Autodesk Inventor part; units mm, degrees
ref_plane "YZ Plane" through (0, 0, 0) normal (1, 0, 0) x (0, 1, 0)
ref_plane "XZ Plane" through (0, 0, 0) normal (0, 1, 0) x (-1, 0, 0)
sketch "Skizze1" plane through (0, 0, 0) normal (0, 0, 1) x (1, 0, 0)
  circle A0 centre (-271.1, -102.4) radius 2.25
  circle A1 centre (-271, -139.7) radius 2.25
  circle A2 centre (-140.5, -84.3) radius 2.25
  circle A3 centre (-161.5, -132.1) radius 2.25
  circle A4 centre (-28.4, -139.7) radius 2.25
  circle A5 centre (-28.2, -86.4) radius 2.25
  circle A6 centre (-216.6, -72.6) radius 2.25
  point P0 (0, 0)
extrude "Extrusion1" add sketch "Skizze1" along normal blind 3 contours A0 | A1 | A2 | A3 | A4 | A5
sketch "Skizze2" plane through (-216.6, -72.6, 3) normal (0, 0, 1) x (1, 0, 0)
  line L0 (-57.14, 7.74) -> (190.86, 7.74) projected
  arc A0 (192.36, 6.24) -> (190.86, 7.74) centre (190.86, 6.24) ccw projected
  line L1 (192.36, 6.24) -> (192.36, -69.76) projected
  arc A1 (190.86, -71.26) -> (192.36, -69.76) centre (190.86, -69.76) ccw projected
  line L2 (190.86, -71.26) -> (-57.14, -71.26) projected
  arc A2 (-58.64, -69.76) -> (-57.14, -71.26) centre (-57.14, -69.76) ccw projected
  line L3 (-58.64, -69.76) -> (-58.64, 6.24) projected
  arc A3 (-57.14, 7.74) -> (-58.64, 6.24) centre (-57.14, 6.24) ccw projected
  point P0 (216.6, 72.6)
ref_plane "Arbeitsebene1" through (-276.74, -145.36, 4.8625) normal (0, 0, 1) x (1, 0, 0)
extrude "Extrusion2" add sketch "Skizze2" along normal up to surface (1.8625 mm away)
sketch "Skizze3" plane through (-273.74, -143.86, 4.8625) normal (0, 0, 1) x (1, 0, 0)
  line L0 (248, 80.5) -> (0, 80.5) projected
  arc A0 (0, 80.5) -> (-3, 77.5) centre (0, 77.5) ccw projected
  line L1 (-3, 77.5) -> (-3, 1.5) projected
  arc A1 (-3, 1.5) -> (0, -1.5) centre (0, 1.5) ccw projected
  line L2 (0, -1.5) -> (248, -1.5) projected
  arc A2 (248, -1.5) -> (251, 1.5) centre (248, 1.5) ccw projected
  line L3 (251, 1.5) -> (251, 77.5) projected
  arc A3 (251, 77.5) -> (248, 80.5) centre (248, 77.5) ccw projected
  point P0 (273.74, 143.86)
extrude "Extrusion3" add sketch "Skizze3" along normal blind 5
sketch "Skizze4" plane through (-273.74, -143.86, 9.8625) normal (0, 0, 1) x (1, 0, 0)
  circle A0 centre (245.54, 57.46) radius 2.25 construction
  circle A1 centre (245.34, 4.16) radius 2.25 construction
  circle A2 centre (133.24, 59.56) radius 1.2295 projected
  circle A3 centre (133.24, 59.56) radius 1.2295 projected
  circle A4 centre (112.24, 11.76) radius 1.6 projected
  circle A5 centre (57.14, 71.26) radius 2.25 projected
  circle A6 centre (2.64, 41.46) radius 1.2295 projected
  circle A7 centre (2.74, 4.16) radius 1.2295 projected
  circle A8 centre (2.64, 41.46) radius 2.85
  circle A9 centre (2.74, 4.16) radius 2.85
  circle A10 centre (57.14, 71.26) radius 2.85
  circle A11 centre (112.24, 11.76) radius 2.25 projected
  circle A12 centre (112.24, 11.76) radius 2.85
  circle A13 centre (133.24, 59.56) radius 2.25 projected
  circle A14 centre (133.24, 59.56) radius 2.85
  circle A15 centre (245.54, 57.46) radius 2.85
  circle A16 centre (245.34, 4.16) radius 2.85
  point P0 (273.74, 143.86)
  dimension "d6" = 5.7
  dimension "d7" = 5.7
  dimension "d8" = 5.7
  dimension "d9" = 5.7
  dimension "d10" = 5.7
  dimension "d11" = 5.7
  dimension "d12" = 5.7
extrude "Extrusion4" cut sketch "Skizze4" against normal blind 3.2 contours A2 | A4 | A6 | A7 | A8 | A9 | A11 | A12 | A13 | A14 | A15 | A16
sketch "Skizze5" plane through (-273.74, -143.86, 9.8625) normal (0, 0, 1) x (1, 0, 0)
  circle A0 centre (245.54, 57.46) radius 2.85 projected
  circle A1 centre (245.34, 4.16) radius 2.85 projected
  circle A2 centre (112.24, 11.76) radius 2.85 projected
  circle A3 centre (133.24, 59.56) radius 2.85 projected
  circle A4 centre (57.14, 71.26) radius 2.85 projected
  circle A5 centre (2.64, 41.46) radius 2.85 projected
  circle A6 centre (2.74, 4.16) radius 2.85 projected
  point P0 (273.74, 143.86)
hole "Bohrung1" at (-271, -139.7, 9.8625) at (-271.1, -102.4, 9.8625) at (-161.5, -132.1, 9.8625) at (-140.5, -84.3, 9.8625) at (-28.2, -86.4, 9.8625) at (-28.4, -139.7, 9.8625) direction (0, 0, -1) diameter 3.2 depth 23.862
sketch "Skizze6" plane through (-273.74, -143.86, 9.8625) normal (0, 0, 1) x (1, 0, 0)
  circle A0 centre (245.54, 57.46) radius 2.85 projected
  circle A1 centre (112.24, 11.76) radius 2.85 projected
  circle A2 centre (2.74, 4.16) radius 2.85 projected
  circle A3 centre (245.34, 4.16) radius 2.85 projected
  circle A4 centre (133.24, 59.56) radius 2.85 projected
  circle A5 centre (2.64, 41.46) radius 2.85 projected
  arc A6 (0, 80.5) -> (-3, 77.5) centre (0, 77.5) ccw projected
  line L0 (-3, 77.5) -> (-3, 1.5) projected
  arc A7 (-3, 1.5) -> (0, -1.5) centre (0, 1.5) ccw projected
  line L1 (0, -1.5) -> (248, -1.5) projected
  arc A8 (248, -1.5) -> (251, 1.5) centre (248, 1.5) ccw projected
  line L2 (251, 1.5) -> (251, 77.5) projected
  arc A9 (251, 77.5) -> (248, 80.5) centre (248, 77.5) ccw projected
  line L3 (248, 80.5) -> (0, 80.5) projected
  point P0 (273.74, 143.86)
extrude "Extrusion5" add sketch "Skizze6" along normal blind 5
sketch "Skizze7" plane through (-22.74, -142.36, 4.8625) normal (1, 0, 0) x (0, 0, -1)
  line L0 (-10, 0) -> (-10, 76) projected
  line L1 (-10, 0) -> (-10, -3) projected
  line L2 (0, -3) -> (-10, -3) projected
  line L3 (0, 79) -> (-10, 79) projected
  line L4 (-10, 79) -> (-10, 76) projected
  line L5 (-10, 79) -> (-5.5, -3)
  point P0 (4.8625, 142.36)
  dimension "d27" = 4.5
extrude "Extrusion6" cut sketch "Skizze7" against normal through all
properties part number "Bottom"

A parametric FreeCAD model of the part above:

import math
import FreeCAD as App
import Part
import Sketcher

V = App.Vector


def add_polygon(sketch, points):
    """Adds a closed chain of lines whose ends are joined by coincident constraints."""
    first, n = sketch.GeometryCount, len(points)
    for a, b in zip(points, points[1:] + points[:1]):
        sketch.addGeometry(Part.LineSegment(App.Vector(*a, 0), App.Vector(*b, 0)), False)
    for i in range(n):
        sketch.addConstraint(Sketcher.Constraint("Coincident", first + i, 2, first + (i + 1) % n, 1))

doc = App.newDocument("Part")
params = doc.addObject("Spreadsheet::Sheet", "Params")
for row, (alias, value) in enumerate([
    ("sketch1_diameter", "4.5 mm"),
    ("pad1_length", "3 mm"),
    ("sketch2_radius", "1.5 mm"),
    ("sketch2_width", "248 mm"),
    ("sketch2_height", "76 mm"),
    ("pad2_length", "1.8625 mm"),
    ("sketch3_radius", "3 mm"),
    ("sketch3_width", "248 mm"),
    ("sketch3_height", "76 mm"),
    ("pad3_length", "5 mm"),
    ("sketch4_diameter", "5.7 mm"),
    ("pocket1_length", "3.2 mm"),
    ("sketch5_diameter", "3.2 mm"),
    ("hole_diameter", "3.2 mm"),
    ("hole_depth", "23.862 mm"),
    ("sketch6_radius", "3 mm"),
    ("sketch6_diameter", "5.7 mm"),
    ("sketch6_width", "248 mm"),
    ("sketch6_height", "76 mm"),
    ("pad4_length", "5 mm"),
    ("sketch7_height", "4.5 mm"),
    ("sketch7_width", "82 mm"),
], start=1):
    params.set(f"A{row}", alias)
    params.set(f"B{row}", "=" + value)
    params.setAlias(f"B{row}", alias)

body = doc.addObject("PartDesign::Body", "Body")
body.AllowCompound = True

# Sketch on XY plane
sketch1 = body.newObject("Sketcher::SketchObject", "Sketch")
sketch1.AttachmentSupport = (doc.getObject("XY_Plane"), [""])
sketch1.MapMode = "FlatFace"
sketch1.addGeometry([
    Part.Circle(V(-271.1, -102.4, 0), V(0, 0, 1), 2.2),  # 0
    Part.Circle(V(-271, -139.7, 0), V(0, 0, 1), 2.2),  # 1
    Part.Circle(V(-140.5, -84.3, 0), V(0, 0, 1), 2.2),  # 2
    Part.Circle(V(-161.5, -132.1, 0), V(0, 0, 1), 2.2),  # 3
    Part.Circle(V(-28.4, -139.7, 0), V(0, 0, 1), 2.2),  # 4
    Part.Circle(V(-28.2, -86.4, 0), V(0, 0, 1), 2.2),  # 5
], False)
sketch1.addConstraint([
    Sketcher.Constraint("Equal", 0, 1),
    Sketcher.Constraint("Equal", 1, 2),
    Sketcher.Constraint("Equal", 2, 3),
    Sketcher.Constraint("Equal", 3, 4),
    Sketcher.Constraint("Equal", 4, 5),
    Sketcher.Constraint("Horizontal", 1, 3, 4, 3),
    Sketcher.Constraint("Diameter", 0, 4.5),
    Sketcher.Constraint("DistanceX", 1, 3, -1, 1, 271.0),
    Sketcher.Constraint("DistanceX", 3, 3, 2, 3, 21.0),
    Sketcher.Constraint("DistanceY", 0, 3, 5, 3, 16.0),
    Sketcher.Constraint("DistanceX", 0, 3, -1, 1, 271.1),
    Sketcher.Constraint("DistanceY", 0, 3, -1, 1, 102.4),
    Sketcher.Constraint("DistanceY", 1, 3, -1, 1, 139.7),
    Sketcher.Constraint("DistanceX", 2, 3, -1, 1, 140.5),
    Sketcher.Constraint("DistanceY", 2, 3, -1, 1, 84.3),
    Sketcher.Constraint("DistanceY", 3, 3, -1, 1, 132.1),
    Sketcher.Constraint("DistanceX", 4, 3, -1, 1, 28.4),
    Sketcher.Constraint("DistanceX", 5, 3, -1, 1, 28.2),
])
sketch1.setExpression("Constraints[6]", "Params.sketch1_diameter")
pad1 = body.newObject("PartDesign::Pad", "Pad")
pad1.Profile = sketch1
pad1.setExpression("Length", "Params.pad1_length")

# Sketch on XY plane
sketch2 = body.newObject("Sketcher::SketchObject", "Sketch001")
sketch2.AttachmentSupport = (doc.getObject("XY_Plane"), [""])
sketch2.MapMode = "FlatFace"
sketch2.AttachmentOffset = App.Placement(V(0, 0, 3), App.Rotation())
sketch2.addGeometry([
    Part.LineSegment(V(-25.7, -64.9, 0), V(-273.7, -64.9, 0)),  # 0
    Part.ArcOfCircle(Part.Circle(V(-273.7, -66.4, 0), V(0, 0, 1), 1.5), math.radians(90), math.radians(180)),  # 1
    Part.LineSegment(V(-275.2, -66.4, 0), V(-275.2, -142.4, 0)),  # 2
    Part.ArcOfCircle(Part.Circle(V(-273.7, -142.4, 0), V(0, 0, 1), 1.5), math.radians(180), math.radians(270)),  # 3
    Part.LineSegment(V(-273.7, -143.9, 0), V(-25.7, -143.9, 0)),  # 4
    Part.ArcOfCircle(Part.Circle(V(-25.7, -142.4, 0), V(0, 0, 1), 1.5), math.radians(-90), math.radians(0)),  # 5
    Part.LineSegment(V(-24.2, -142.4, 0), V(-24.2, -66.4, 0)),  # 6
    Part.ArcOfCircle(Part.Circle(V(-25.7, -66.4, 0), V(0, 0, 1), 1.5), math.radians(0), math.radians(90)),  # 7
], False)
sketch2.addConstraint([
    Sketcher.Constraint("Tangent", 0, 2, 1, 1),
    Sketcher.Constraint("Tangent", 1, 2, 2, 1),
    Sketcher.Constraint("Tangent", 2, 2, 3, 1),
    Sketcher.Constraint("Tangent", 3, 2, 4, 1),
    Sketcher.Constraint("Tangent", 4, 2, 5, 1),
    Sketcher.Constraint("Tangent", 5, 2, 6, 1),
    Sketcher.Constraint("Tangent", 6, 2, 7, 1),
    Sketcher.Constraint("Tangent", 7, 2, 0, 1),
    Sketcher.Constraint("Horizontal", 0),
    Sketcher.Constraint("Vertical", 2),
    Sketcher.Constraint("Horizontal", 4),
    Sketcher.Constraint("Vertical", 6),
    Sketcher.Constraint("Equal", 1, 3),
    Sketcher.Constraint("Equal", 3, 5),
    Sketcher.Constraint("Equal", 5, 7),
    Sketcher.Constraint("Radius", 1, 1.5),
    Sketcher.Constraint("DistanceX", 0, 2, 0, 1, 248.0),
    Sketcher.Constraint("DistanceY", 2, 2, 2, 1, 76.0),
    Sketcher.Constraint("DistanceX", 1, 3, -1, 1, 273.74),
    Sketcher.Constraint("DistanceY", 1, 3, -1, 1, 66.36),
])
sketch2.setExpression("Constraints[15]", "Params.sketch2_radius")
sketch2.setExpression("Constraints[16]", "Params.sketch2_width")
sketch2.setExpression("Constraints[17]", "Params.sketch2_height")
pad2 = body.newObject("PartDesign::Pad", "Pad001")
pad2.Profile = sketch2
pad2.setExpression("Length", "Params.pad2_length")

# Sketch on XY plane
sketch3 = body.newObject("Sketcher::SketchObject", "Sketch002")
sketch3.AttachmentSupport = (doc.getObject("XY_Plane"), [""])
sketch3.MapMode = "FlatFace"
sketch3.AttachmentOffset = App.Placement(V(0, 0, 4.8625), App.Rotation())
sketch3.addGeometry([
    Part.ArcOfCircle(Part.Circle(V(-25.7, -66.4, 0), V(0, 0, 1), 3), math.radians(0), math.radians(90)),  # 0
    Part.LineSegment(V(-25.7, -63.4, 0), V(-273.7, -63.4, 0)),  # 1
    Part.ArcOfCircle(Part.Circle(V(-273.7, -66.4, 0), V(0, 0, 1), 3), math.radians(90), math.radians(180)),  # 2
    Part.LineSegment(V(-276.7, -66.4, 0), V(-276.7, -142.4, 0)),  # 3
    Part.ArcOfCircle(Part.Circle(V(-273.7, -142.4, 0), V(0, 0, 1), 3), math.radians(180), math.radians(270)),  # 4
    Part.LineSegment(V(-273.7, -145.4, 0), V(-25.7, -145.4, 0)),  # 5
    Part.ArcOfCircle(Part.Circle(V(-25.7, -142.4, 0), V(0, 0, 1), 3), math.radians(-90), math.radians(0)),  # 6
    Part.LineSegment(V(-22.7, -142.4, 0), V(-22.7, -66.4, 0)),  # 7
], False)
sketch3.addConstraint([
    Sketcher.Constraint("Tangent", 0, 2, 1, 1),
    Sketcher.Constraint("Tangent", 1, 2, 2, 1),
    Sketcher.Constraint("Tangent", 2, 2, 3, 1),
    Sketcher.Constraint("Tangent", 3, 2, 4, 1),
    Sketcher.Constraint("Tangent", 4, 2, 5, 1),
    Sketcher.Constraint("Tangent", 5, 2, 6, 1),
    Sketcher.Constraint("Tangent", 6, 2, 7, 1),
    Sketcher.Constraint("Tangent", 7, 2, 0, 1),
    Sketcher.Constraint("Horizontal", 1),
    Sketcher.Constraint("Vertical", 3),
    Sketcher.Constraint("Horizontal", 5),
    Sketcher.Constraint("Vertical", 7),
    Sketcher.Constraint("Equal", 0, 2),
    Sketcher.Constraint("Equal", 2, 4),
    Sketcher.Constraint("Equal", 4, 6),
    Sketcher.Constraint("Radius", 0, 3.0),
    Sketcher.Constraint("DistanceX", 1, 2, 1, 1, 248.0),
    Sketcher.Constraint("DistanceY", 3, 2, 3, 1, 76.0),
    Sketcher.Constraint("DistanceX", 0, 3, -1, 1, 25.74),
    Sketcher.Constraint("DistanceY", 0, 3, -1, 1, 66.36),
])
sketch3.setExpression("Constraints[15]", "Params.sketch3_radius")
sketch3.setExpression("Constraints[16]", "Params.sketch3_width")
sketch3.setExpression("Constraints[17]", "Params.sketch3_height")
pad3 = body.newObject("PartDesign::Pad", "Pad002")
pad3.Profile = sketch3
pad3.setExpression("Length", "Params.pad3_length")

# Sketch on XY plane
sketch4 = body.newObject("Sketcher::SketchObject", "Sketch003")
sketch4.AttachmentSupport = (doc.getObject("XY_Plane"), [""])
sketch4.MapMode = "FlatFace"
sketch4.AttachmentOffset = App.Placement(V(0, 0, 9.8625), App.Rotation())
sketch4.addGeometry([
    Part.Circle(V(-140.5, -84.3, 0), V(0, 0, 1), 2.9),  # 0
    Part.Circle(V(-161.5, -132.1, 0), V(0, 0, 1), 2.9),  # 1
    Part.Circle(V(-271.1, -102.4, 0), V(0, 0, 1), 2.9),  # 2
    Part.Circle(V(-271, -139.7, 0), V(0, 0, 1), 2.9),  # 3
    Part.Circle(V(-28.2, -86.4, 0), V(0, 0, 1), 2.9),  # 4
    Part.Circle(V(-28.4, -139.7, 0), V(0, 0, 1), 2.9),  # 5
], False)
sketch4.addConstraint([
    Sketcher.Constraint("Equal", 0, 1),
    Sketcher.Constraint("Equal", 1, 2),
    Sketcher.Constraint("Equal", 2, 3),
    Sketcher.Constraint("Equal", 3, 4),
    Sketcher.Constraint("Equal", 4, 5),
    Sketcher.Constraint("Horizontal", 3, 3, 5, 3),
    Sketcher.Constraint("Diameter", 0, 5.7),
    Sketcher.Constraint("DistanceX", 3, 3, -1, 1, 271.0),
    Sketcher.Constraint("DistanceX", 1, 3, 0, 3, 21.0),
    Sketcher.Constraint("DistanceY", 2, 3, 4, 3, 16.0),
    Sketcher.Constraint("DistanceX", 0, 3, -1, 1, 140.5),
    Sketcher.Constraint("DistanceY", 0, 3, -1, 1, 84.3),
    Sketcher.Constraint("DistanceY", 1, 3, -1, 1, 132.1),
    Sketcher.Constraint("DistanceX", 2, 3, -1, 1, 271.1),
    Sketcher.Constraint("DistanceY", 2, 3, -1, 1, 102.4),
    Sketcher.Constraint("DistanceY", 3, 3, -1, 1, 139.7),
    Sketcher.Constraint("DistanceX", 4, 3, -1, 1, 28.2),
    Sketcher.Constraint("DistanceX", 5, 3, -1, 1, 28.4),
])
sketch4.setExpression("Constraints[6]", "Params.sketch4_diameter")
pocket1 = body.newObject("PartDesign::Pocket", "Pocket")
pocket1.Profile = sketch4
pocket1.setExpression("Length", "Params.pocket1_length")

# Sketch on XY plane
sketch5 = body.newObject("Sketcher::SketchObject", "Sketch004")
sketch5.AttachmentSupport = (doc.getObject("XY_Plane"), [""])
sketch5.MapMode = "FlatFace"
sketch5.AttachmentOffset = App.Placement(V(0, 0, 9.8625), App.Rotation())
sketch5.addGeometry([
    Part.Circle(V(-271, -139.7, 0), V(0, 0, 1), 1.6),  # 0
    Part.Circle(V(-271.1, -102.4, 0), V(0, 0, 1), 1.6),  # 1
    Part.Circle(V(-161.5, -132.1, 0), V(0, 0, 1), 1.6),  # 2
    Part.Circle(V(-140.5, -84.3, 0), V(0, 0, 1), 1.6),  # 3
    Part.Circle(V(-28.2, -86.4, 0), V(0, 0, 1), 1.6),  # 4
    Part.Circle(V(-28.4, -139.7, 0), V(0, 0, 1), 1.6),  # 5
], False)
sketch5.addConstraint([
    Sketcher.Constraint("Equal", 0, 1),
    Sketcher.Constraint("Equal", 1, 2),
    Sketcher.Constraint("Equal", 2, 3),
    Sketcher.Constraint("Equal", 3, 4),
    Sketcher.Constraint("Equal", 4, 5),
    Sketcher.Constraint("Horizontal", 0, 3, 5, 3),
    Sketcher.Constraint("Diameter", 0, 3.2),
    Sketcher.Constraint("DistanceX", 0, 3, -1, 1, 271.0),
    Sketcher.Constraint("DistanceX", 2, 3, 3, 3, 21.0),
    Sketcher.Constraint("DistanceY", 1, 3, 4, 3, 16.0),
    Sketcher.Constraint("DistanceY", 0, 3, -1, 1, 139.7),
    Sketcher.Constraint("DistanceX", 1, 3, -1, 1, 271.1),
    Sketcher.Constraint("DistanceY", 1, 3, -1, 1, 102.4),
    Sketcher.Constraint("DistanceX", 2, 3, -1, 1, 161.5),
    Sketcher.Constraint("DistanceY", 2, 3, -1, 1, 132.1),
    Sketcher.Constraint("DistanceY", 3, 3, -1, 1, 84.3),
    Sketcher.Constraint("DistanceX", 4, 3, -1, 1, 28.2),
    Sketcher.Constraint("DistanceX", 5, 3, -1, 1, 28.4),
])
sketch5.setExpression("Constraints[6]", "Params.sketch5_diameter")
doc.recompute()
hole = body.newObject("PartDesign::Hole", "Hole")
hole.Profile = sketch5
hole.ThreadType = "None"
hole.setExpression("Diameter", "Params.hole_diameter")
hole.DepthType = "Dimension"
hole.setExpression("Depth", "Params.hole_depth")
hole.DrillPoint = "Flat"

# Sketch on XY plane
sketch6 = body.newObject("Sketcher::SketchObject", "Sketch005")
sketch6.AttachmentSupport = (doc.getObject("XY_Plane"), [""])
sketch6.MapMode = "FlatFace"
sketch6.AttachmentOffset = App.Placement(V(0, 0, 9.8625), App.Rotation())
sketch6.addGeometry([
    Part.LineSegment(V(-25.7, -63.4, 0), V(-273.7, -63.4, 0)),  # 0
    Part.ArcOfCircle(Part.Circle(V(-273.7, -66.4, 0), V(0, 0, 1), 3), math.radians(90), math.radians(180)),  # 1
    Part.LineSegment(V(-276.7, -66.4, 0), V(-276.7, -142.4, 0)),  # 2
    Part.ArcOfCircle(Part.Circle(V(-273.7, -142.4, 0), V(0, 0, 1), 3), math.radians(180), math.radians(270)),  # 3
    Part.LineSegment(V(-273.7, -145.4, 0), V(-25.7, -145.4, 0)),  # 4
    Part.ArcOfCircle(Part.Circle(V(-25.7, -142.4, 0), V(0, 0, 1), 3), math.radians(-90), math.radians(0)),  # 5
    Part.LineSegment(V(-22.7, -142.4, 0), V(-22.7, -66.4, 0)),  # 6
    Part.ArcOfCircle(Part.Circle(V(-25.7, -66.4, 0), V(0, 0, 1), 3), math.radians(0), math.radians(90)),  # 7
    Part.Circle(V(-271, -139.7, 0), V(0, 0, 1), 2.9),  # 8
    Part.Circle(V(-161.5, -132.1, 0), V(0, 0, 1), 2.9),  # 9
    Part.Circle(V(-28.4, -139.7, 0), V(0, 0, 1), 2.9),  # 10
    Part.Circle(V(-271.1, -102.4, 0), V(0, 0, 1), 2.9),  # 11
    Part.Circle(V(-140.5, -84.3, 0), V(0, 0, 1), 2.9),  # 12
    Part.Circle(V(-28.2, -86.4, 0), V(0, 0, 1), 2.9),  # 13
], False)
sketch6.addConstraint([
    Sketcher.Constraint("Tangent", 0, 2, 1, 1),
    Sketcher.Constraint("Tangent", 1, 2, 2, 1),
    Sketcher.Constraint("Tangent", 2, 2, 3, 1),
    Sketcher.Constraint("Tangent", 3, 2, 4, 1),
    Sketcher.Constraint("Tangent", 4, 2, 5, 1),
    Sketcher.Constraint("Tangent", 5, 2, 6, 1),
    Sketcher.Constraint("Tangent", 6, 2, 7, 1),
    Sketcher.Constraint("Tangent", 7, 2, 0, 1),
    Sketcher.Constraint("Horizontal", 0),
    Sketcher.Constraint("Vertical", 2),
    Sketcher.Constraint("Horizontal", 4),
    Sketcher.Constraint("Vertical", 6),
    Sketcher.Constraint("Equal", 1, 3),
    Sketcher.Constraint("Equal", 3, 5),
    Sketcher.Constraint("Equal", 5, 7),
    Sketcher.Constraint("Equal", 8, 9),
    Sketcher.Constraint("Equal", 9, 10),
    Sketcher.Constraint("Equal", 10, 11),
    Sketcher.Constraint("Equal", 11, 12),
    Sketcher.Constraint("Equal", 12, 13),
    Sketcher.Constraint("Horizontal", 8, 3, 10, 3),
    Sketcher.Constraint("Radius", 1, 3.0),
    Sketcher.Constraint("Diameter", 8, 5.7),
    Sketcher.Constraint("DistanceX", 0, 2, 0, 1, 248.0),
    Sketcher.Constraint("DistanceY", 2, 2, 2, 1, 76.0),
    Sketcher.Constraint("DistanceX", 8, 3, -1, 1, 271.0),
    Sketcher.Constraint("DistanceX", 9, 3, 12, 3, 21.0),
    Sketcher.Constraint("DistanceY", 8, 3, -1, 1, 139.7),
    Sketcher.Constraint("DistanceX", 9, 3, -1, 1, 161.5),
    Sketcher.Constraint("DistanceY", 9, 3, -1, 1, 132.1),
    Sketcher.Constraint("DistanceX", 10, 3, -1, 1, 28.4),
    Sketcher.Constraint("DistanceX", 11, 3, -1, 1, 271.1),
    Sketcher.Constraint("DistanceY", 11, 3, -1, 1, 102.4),
    Sketcher.Constraint("DistanceY", 12, 3, -1, 1, 84.3),
    Sketcher.Constraint("DistanceX", 13, 3, -1, 1, 28.2),
    Sketcher.Constraint("DistanceY", 13, 3, -1, 1, 86.4),
    Sketcher.Constraint("DistanceX", 1, 3, -1, 1, 273.74),
    Sketcher.Constraint("DistanceY", 1, 3, -1, 1, 66.36),
])
sketch6.setExpression("Constraints[21]", "Params.sketch6_radius")
sketch6.setExpression("Constraints[22]", "Params.sketch6_diameter")
sketch6.setExpression("Constraints[23]", "Params.sketch6_width")
sketch6.setExpression("Constraints[24]", "Params.sketch6_height")
pad4 = body.newObject("PartDesign::Pad", "Pad003")
pad4.Profile = sketch6
pad4.setExpression("Length", "Params.pad4_length")

# Sketch on YZ plane
sketch7 = body.newObject("Sketcher::SketchObject", "Sketch006")
sketch7.AttachmentSupport = (doc.getObject("YZ_Plane"), [""])
sketch7.MapMode = "FlatFace"
sketch7.AttachmentOffset = App.Placement(V(0, 0, -22.74), App.Rotation())
add_polygon(sketch7, [(-63.4, 14.9), (-145.4, 14.9), (-145.4, 10.4)])  # lines 0-2
sketch7.addConstraint([
    Sketcher.Constraint("Horizontal", 0),
    Sketcher.Constraint("Vertical", 1),
    Sketcher.Constraint("DistanceY", 1, 2, 1, 1, 4.5),
    Sketcher.Constraint("DistanceX", 0, 2, 0, 1, 82.0),
    Sketcher.Constraint("DistanceX", 0, 2, -1, 1, 145.36),
    Sketcher.Constraint("DistanceY", -1, 1, 0, 2, 14.8625),
])
sketch7.setExpression("Constraints[5]", "Params.sketch7_height")
sketch7.setExpression("Constraints[6]", "Params.sketch7_width")
pocket2 = body.newObject("PartDesign::Pocket", "Pocket001")
pocket2.Profile = sketch7
pocket2.Type = "ThroughAll"

doc.recompute()
